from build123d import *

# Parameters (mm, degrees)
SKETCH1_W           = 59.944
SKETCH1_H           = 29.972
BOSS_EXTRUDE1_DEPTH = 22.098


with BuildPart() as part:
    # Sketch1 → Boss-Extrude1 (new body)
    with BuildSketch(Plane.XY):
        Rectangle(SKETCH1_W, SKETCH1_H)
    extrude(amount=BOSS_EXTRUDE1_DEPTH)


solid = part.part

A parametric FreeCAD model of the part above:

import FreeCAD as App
import Part
import Sketcher

V = App.Vector
Q = App.Units.Quantity

doc = App.newDocument("Part")
body = doc.addObject("PartDesign::Body", "Body")

# Sketch on XY plane
sketch1 = body.newObject("Sketcher::SketchObject", "Sketch")
sketch1.AttachmentSupport = (doc.getObject("XY_Plane"), [""])
sketch1.MapMode = "FlatFace"
sketch1.addGeometry([
    Part.LineSegment(V(-30, 15, 0), V(-30, -15, 0)),
    Part.LineSegment(V(-30, -15, 0), V(30, -15, 0)),
    Part.LineSegment(V(30, -15, 0), V(30, 15, 0)),
    Part.LineSegment(V(30, 15, 0), V(-30, 15, 0)),
], False)
sketch1.addConstraint([
    Sketcher.Constraint("Coincident", 0, 2, 1, 1),
    Sketcher.Constraint("Coincident", 1, 2, 2, 1),
    Sketcher.Constraint("Coincident", 2, 2, 3, 1),
    Sketcher.Constraint("Coincident", 3, 2, 0, 1),
    Sketcher.Constraint("Vertical", 0),
    Sketcher.Constraint("Horizontal", 1),
    Sketcher.Constraint("Vertical", 2),
    Sketcher.Constraint("Horizontal", 3),
    Sketcher.Constraint("Symmetric", 0, 2, 2, 2, -1, 1),
    Sketcher.Constraint("DistanceX", 1, 1, 1, 2, Q("2.36 in")),
    Sketcher.Constraint("DistanceY", 0, 2, 0, 1, Q("1.18 in")),
])
pad1 = body.newObject("PartDesign::Pad", "Pad")
pad1.Profile = sketch1
pad1.Length = Q("0.87 in")

doc.recompute()
